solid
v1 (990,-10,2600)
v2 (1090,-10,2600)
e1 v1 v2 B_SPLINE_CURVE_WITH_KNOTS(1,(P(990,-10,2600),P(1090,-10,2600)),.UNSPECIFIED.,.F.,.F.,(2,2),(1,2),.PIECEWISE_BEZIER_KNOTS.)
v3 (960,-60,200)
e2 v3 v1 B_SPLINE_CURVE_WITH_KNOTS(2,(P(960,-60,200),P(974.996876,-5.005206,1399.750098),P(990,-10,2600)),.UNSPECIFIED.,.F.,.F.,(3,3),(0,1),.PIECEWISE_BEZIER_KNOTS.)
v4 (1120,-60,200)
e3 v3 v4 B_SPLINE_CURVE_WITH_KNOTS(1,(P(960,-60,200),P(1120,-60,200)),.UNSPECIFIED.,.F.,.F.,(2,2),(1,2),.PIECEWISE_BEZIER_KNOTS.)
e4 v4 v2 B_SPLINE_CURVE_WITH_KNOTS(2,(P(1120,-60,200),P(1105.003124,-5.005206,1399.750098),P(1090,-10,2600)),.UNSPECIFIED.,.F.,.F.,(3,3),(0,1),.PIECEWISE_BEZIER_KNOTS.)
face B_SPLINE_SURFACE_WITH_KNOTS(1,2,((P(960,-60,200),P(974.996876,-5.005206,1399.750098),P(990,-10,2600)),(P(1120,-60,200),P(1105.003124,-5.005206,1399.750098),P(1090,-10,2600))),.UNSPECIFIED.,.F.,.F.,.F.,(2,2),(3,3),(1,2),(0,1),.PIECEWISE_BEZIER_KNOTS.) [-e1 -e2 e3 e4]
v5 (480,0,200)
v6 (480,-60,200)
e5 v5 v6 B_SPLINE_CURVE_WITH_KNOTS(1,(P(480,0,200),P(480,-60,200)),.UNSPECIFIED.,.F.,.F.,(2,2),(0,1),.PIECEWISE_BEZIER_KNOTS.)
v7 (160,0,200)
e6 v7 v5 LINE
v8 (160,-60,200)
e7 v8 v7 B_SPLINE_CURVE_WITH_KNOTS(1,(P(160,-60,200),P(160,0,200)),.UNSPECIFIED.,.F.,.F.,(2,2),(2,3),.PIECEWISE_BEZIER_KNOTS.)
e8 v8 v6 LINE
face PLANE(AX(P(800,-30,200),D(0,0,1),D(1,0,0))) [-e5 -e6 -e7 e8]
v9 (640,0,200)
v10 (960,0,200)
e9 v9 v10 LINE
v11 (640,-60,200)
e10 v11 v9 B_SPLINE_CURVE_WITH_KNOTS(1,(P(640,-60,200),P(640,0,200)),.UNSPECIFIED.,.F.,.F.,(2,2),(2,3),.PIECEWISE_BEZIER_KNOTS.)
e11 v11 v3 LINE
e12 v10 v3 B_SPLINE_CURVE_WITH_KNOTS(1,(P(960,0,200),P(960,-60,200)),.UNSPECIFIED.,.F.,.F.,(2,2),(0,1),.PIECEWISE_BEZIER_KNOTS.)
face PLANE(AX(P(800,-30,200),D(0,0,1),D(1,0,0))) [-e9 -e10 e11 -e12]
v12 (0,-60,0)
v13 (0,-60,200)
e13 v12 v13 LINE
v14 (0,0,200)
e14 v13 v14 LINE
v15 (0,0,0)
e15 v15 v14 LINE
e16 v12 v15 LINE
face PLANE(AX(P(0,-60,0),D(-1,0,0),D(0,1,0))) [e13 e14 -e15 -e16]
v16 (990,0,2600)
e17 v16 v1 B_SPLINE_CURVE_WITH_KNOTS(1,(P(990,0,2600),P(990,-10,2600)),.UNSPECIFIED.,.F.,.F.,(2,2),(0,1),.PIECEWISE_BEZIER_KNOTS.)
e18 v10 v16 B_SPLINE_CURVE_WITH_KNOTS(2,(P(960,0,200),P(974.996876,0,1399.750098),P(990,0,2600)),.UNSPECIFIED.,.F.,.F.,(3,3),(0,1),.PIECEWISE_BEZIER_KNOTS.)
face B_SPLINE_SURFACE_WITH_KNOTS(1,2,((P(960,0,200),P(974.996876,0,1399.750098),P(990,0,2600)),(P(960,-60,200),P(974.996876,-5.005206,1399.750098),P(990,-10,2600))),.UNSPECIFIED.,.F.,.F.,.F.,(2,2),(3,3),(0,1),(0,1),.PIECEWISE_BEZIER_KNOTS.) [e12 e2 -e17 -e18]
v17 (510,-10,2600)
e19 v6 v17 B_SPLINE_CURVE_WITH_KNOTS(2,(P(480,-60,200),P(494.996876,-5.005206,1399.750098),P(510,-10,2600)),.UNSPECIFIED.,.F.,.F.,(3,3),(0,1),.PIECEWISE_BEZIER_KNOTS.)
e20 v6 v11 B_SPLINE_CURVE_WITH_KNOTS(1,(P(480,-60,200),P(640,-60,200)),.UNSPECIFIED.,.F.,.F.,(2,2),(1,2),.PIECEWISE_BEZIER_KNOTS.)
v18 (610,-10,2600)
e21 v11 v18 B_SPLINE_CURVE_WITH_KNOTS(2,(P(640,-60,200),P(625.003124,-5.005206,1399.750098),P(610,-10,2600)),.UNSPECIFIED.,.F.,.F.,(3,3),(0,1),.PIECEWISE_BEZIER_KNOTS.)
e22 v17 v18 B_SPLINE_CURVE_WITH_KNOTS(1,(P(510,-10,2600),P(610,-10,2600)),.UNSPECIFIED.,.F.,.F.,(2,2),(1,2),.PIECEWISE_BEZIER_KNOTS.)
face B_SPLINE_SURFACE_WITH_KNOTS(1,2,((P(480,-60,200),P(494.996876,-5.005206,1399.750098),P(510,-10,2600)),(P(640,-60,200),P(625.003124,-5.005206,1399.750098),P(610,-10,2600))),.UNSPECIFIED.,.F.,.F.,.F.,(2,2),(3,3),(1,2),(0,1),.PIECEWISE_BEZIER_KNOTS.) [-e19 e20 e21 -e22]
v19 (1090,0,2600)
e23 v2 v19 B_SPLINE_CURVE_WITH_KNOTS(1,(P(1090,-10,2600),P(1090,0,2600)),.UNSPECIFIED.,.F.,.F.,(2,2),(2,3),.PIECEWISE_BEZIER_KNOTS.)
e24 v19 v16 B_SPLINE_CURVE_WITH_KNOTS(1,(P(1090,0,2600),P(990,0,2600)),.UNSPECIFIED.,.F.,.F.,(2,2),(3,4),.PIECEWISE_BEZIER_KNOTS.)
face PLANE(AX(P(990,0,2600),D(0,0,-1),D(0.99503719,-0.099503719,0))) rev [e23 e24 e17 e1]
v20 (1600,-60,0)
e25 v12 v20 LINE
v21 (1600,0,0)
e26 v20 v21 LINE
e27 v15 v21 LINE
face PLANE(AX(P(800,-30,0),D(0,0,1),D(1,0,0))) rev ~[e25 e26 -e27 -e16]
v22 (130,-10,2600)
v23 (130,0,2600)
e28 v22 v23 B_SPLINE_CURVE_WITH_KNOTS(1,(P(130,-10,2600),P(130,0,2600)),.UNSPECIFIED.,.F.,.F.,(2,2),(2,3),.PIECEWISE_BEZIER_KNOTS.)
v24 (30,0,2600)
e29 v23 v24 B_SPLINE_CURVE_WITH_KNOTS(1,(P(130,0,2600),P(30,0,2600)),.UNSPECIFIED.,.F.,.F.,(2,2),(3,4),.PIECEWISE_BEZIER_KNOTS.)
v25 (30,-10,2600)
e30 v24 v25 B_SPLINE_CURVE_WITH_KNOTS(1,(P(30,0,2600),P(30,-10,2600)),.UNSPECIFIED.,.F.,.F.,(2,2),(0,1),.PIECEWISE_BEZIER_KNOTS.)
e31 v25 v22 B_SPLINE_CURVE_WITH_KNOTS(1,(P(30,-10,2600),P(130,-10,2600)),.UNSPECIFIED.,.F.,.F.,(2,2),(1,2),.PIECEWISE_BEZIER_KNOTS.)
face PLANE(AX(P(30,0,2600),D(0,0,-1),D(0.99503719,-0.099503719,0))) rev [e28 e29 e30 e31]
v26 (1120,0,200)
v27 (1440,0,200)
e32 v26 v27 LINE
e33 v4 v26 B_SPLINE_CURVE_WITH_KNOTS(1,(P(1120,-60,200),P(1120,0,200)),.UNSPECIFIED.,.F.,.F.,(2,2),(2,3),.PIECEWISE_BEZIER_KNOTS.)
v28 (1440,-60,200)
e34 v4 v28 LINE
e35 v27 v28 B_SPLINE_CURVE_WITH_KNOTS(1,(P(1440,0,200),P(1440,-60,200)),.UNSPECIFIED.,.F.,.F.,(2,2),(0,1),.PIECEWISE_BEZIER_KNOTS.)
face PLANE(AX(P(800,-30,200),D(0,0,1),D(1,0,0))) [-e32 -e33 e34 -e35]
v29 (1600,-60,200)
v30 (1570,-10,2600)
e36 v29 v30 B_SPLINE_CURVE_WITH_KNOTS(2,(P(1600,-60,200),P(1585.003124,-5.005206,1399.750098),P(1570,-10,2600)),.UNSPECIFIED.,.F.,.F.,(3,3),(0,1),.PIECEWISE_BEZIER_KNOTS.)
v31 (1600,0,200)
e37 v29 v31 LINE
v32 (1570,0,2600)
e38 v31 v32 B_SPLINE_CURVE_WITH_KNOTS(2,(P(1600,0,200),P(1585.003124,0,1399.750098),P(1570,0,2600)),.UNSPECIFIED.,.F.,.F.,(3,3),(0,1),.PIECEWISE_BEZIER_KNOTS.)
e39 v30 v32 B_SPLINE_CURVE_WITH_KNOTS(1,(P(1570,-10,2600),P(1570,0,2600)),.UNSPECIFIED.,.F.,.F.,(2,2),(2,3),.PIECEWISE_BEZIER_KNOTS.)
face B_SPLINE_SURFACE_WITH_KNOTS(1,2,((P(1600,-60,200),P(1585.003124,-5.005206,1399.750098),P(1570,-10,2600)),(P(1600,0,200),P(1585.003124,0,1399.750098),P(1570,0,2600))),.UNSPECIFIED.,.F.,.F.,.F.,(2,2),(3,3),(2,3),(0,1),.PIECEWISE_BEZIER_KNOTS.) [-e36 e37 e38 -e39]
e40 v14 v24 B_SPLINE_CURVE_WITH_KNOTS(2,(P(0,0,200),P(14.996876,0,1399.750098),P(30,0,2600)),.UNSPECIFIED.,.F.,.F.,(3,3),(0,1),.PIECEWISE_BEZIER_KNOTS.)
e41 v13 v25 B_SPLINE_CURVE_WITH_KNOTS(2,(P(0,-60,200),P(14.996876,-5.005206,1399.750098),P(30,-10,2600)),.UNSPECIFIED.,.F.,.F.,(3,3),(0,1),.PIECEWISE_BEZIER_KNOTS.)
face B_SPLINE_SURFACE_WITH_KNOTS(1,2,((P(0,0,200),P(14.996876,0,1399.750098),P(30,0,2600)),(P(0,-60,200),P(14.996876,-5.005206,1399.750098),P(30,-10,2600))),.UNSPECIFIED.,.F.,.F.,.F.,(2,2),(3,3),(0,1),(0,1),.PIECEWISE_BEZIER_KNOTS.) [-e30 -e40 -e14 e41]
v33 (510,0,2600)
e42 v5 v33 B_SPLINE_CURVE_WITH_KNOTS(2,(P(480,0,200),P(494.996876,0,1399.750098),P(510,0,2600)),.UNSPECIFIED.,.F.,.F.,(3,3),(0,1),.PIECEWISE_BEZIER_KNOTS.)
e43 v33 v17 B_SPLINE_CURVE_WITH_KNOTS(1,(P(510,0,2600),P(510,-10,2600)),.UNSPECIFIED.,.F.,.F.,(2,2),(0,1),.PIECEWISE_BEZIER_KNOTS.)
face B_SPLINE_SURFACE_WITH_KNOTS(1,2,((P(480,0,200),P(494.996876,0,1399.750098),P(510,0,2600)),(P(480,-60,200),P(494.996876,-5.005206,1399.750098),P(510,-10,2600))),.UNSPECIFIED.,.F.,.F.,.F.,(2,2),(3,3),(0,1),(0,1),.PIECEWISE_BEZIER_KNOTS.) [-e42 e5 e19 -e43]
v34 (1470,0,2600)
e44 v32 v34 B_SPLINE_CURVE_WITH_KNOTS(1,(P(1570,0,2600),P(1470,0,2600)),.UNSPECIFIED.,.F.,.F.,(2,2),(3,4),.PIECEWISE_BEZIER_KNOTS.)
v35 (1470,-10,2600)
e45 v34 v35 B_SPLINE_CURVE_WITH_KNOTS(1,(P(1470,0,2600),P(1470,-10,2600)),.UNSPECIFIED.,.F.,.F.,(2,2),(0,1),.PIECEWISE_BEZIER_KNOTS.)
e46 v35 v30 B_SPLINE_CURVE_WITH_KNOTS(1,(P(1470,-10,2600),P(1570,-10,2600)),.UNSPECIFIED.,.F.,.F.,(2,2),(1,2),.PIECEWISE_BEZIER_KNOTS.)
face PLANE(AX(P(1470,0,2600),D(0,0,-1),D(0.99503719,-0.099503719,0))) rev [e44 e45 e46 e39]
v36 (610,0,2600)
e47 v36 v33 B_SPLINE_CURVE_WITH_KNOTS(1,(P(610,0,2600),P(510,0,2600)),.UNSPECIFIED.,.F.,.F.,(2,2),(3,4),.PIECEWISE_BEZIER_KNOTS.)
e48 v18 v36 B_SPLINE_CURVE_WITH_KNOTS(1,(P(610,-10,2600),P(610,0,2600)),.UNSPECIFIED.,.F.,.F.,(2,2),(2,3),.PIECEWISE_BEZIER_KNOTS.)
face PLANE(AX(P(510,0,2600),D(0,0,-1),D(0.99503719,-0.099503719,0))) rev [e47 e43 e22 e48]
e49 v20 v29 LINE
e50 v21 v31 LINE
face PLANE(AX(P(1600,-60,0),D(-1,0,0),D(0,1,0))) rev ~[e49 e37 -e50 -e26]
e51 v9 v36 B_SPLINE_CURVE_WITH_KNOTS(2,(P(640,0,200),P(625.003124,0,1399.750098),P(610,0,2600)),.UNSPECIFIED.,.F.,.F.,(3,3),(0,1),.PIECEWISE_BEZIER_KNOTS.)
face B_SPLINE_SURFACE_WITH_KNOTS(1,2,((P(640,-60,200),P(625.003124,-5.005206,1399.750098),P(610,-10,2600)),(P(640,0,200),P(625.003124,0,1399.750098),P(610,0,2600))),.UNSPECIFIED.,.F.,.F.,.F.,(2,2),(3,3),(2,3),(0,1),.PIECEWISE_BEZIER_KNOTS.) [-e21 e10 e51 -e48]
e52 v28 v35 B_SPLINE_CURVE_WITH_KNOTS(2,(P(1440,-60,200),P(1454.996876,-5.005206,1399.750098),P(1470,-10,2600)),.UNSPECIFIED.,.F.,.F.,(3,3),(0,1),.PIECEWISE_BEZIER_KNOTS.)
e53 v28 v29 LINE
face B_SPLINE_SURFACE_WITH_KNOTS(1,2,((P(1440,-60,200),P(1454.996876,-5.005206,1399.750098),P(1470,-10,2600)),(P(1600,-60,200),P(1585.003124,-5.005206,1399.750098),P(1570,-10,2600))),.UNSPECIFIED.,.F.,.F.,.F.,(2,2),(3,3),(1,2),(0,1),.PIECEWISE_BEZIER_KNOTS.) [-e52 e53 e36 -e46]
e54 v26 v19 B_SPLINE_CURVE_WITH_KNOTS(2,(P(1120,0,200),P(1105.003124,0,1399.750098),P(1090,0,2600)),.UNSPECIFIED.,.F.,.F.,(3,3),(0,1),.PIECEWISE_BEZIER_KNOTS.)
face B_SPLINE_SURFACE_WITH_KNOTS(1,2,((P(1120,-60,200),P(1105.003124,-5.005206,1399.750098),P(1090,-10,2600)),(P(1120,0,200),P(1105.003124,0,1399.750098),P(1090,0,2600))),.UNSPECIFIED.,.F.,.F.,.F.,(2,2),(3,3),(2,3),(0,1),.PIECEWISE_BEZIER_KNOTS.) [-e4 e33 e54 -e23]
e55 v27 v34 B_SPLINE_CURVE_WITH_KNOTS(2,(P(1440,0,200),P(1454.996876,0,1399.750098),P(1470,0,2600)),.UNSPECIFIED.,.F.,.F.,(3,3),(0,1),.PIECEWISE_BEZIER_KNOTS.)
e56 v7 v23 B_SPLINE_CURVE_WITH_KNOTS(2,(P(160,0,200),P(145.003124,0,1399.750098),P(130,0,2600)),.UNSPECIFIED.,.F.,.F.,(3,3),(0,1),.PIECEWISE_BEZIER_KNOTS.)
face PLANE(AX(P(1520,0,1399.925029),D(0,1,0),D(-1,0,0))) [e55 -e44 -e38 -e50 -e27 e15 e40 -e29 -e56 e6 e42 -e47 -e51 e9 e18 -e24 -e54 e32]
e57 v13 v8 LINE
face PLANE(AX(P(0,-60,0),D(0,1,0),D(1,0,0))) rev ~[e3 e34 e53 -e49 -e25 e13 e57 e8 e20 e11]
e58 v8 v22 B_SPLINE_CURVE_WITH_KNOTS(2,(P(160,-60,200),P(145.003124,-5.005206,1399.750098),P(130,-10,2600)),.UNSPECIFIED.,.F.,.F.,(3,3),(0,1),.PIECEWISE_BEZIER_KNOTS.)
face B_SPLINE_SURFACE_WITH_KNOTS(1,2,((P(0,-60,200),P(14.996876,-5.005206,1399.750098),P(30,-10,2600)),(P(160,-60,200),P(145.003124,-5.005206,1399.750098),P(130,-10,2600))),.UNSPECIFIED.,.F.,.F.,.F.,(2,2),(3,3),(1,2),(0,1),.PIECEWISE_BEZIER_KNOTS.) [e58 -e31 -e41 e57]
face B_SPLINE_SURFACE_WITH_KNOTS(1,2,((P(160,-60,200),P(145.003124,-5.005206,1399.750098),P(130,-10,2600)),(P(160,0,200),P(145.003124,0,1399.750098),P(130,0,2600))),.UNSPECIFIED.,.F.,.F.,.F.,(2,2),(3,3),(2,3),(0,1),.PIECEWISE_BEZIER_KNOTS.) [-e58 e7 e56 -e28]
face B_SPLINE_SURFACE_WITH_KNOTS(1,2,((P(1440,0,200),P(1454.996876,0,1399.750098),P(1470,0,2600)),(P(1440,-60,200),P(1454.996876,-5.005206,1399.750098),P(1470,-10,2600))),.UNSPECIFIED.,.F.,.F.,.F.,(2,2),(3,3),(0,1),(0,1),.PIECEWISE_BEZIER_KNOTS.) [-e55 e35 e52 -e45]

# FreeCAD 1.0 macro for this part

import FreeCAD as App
import Part
import Sketcher
from FreeCAD import Vector


def add_polygon(sketch, points):
    """Adds a closed chain of lines whose ends are joined by coincident constraints."""
    first, n = sketch.GeometryCount, len(points)
    for a, b in zip(points, points[1:] + points[:1]):
        sketch.addGeometry(Part.LineSegment(App.Vector(*a, 0), App.Vector(*b, 0)), False)
    for i in range(n):
        sketch.addConstraint(Sketcher.Constraint("Coincident", first + i, 2, first + (i + 1) % n, 1))

doc = App.newDocument("Part")
params = doc.addObject("Spreadsheet::Sheet", "Params")
for row, (alias, value) in enumerate([
    ("sketch1_width", "1600 mm"),
    ("sketch1_height", "60 mm"),
    ("pad1_length", "200 mm"),
    ("sketch2_width", "160 mm"),
    ("sketch2_height", "60 mm"),
    ("sketch3_width", "130 mm"),
    ("sketch3_height", "20 mm"),
    ("sketch4_width", "100 mm"),
    ("sketch4_height", "10 mm"),
    ("linearpattern_pitch", "480 mm"),
], start=1):
    params.set(f"A{row}", alias)
    params.set(f"B{row}", "=" + value)
    params.setAlias(f"B{row}", alias)

body = doc.addObject("PartDesign::Body", "Body")

sketch1 = body.newObject("Sketcher::SketchObject", "Sketch")
sketch1.AttachmentSupport = (doc.getObject("XY_Plane"), [""])
sketch1.MapMode = "FlatFace"
add_polygon(sketch1, [(0, 0), (0, -60), (1600, -60), (1600, 0)])
sketch1.addConstraint([
    Sketcher.Constraint("Vertical", 0),
    Sketcher.Constraint("Horizontal", 1),
    Sketcher.Constraint("Vertical", 2),
    Sketcher.Constraint("Horizontal", 3),
    Sketcher.Constraint("Coincident", 3, 2, -1, 1),
    Sketcher.Constraint("DistanceX", 1, 1, 1, 2, 1600.0),
    Sketcher.Constraint("DistanceY", 0, 2, 0, 1, 60.0),
])
sketch1.setExpression("Constraints[9]", "Params.sketch1_width")
sketch1.setExpression("Constraints[10]", "Params.sketch1_height")
pad1 = body.newObject("PartDesign::Pad", "Pad")
pad1.Profile = sketch1
pad1.setExpression("Length", "Params.pad1_length")

sketch2 = body.newObject("Sketcher::SketchObject", "Sketch001")
sketch2.AttachmentSupport = (doc.getObject("XY_Plane"), [""])
sketch2.MapMode = "FlatFace"
sketch2.AttachmentOffset = App.Placement(Vector(0, 0, 200), App.Rotation())
add_polygon(sketch2, [(0, 0), (0, -60), (160, -60), (160, 0)])
sketch2.addConstraint([
    Sketcher.Constraint("Vertical", 0),
    Sketcher.Constraint("Horizontal", 1),
    Sketcher.Constraint("Vertical", 2),
    Sketcher.Constraint("Horizontal", 3),
    Sketcher.Constraint("Coincident", 3, 2, -1, 1),
    Sketcher.Constraint("DistanceX", 1, 1, 1, 2, 160.0),
    Sketcher.Constraint("DistanceY", 0, 2, 0, 1, 60.0),
])
sketch2.setExpression("Constraints[9]", "Params.sketch2_width")
sketch2.setExpression("Constraints[10]", "Params.sketch2_height")

sketch3 = body.newObject("Sketcher::SketchObject", "Sketch002")
sketch3.AttachmentSupport = (doc.getObject("XY_Plane"), [""])
sketch3.MapMode = "FlatFace"
sketch3.AttachmentOffset = App.Placement(Vector(0, 0, 1400), App.Rotation())
add_polygon(sketch3, [(15, 0), (15, -20), (145, -20), (145, 0)])
sketch3.addConstraint([
    Sketcher.Constraint("Vertical", 0),
    Sketcher.Constraint("Horizontal", 1),
    Sketcher.Constraint("Vertical", 2),
    Sketcher.Constraint("Horizontal", 3),
    Sketcher.Constraint("PointOnObject", 2, 2, -1),
    Sketcher.Constraint("DistanceX", 1, 1, 1, 2, 130.0),
    Sketcher.Constraint("DistanceY", 0, 2, 0, 1, 20.0),
    Sketcher.Constraint("DistanceX", -1, 1, 0, 2, 15.0),
])
sketch3.setExpression("Constraints[9]", "Params.sketch3_width")
sketch3.setExpression("Constraints[10]", "Params.sketch3_height")

sketch4 = body.newObject("Sketcher::SketchObject", "Sketch003")
sketch4.AttachmentSupport = (doc.getObject("XY_Plane"), [""])
sketch4.MapMode = "FlatFace"
sketch4.AttachmentOffset = App.Placement(Vector(0, 0, 2600), App.Rotation())
add_polygon(sketch4, [(30, 0), (30, -10), (130, -10), (130, 0)])
sketch4.addConstraint([
    Sketcher.Constraint("Vertical", 0),
    Sketcher.Constraint("Horizontal", 1),
    Sketcher.Constraint("Vertical", 2),
    Sketcher.Constraint("Horizontal", 3),
    Sketcher.Constraint("PointOnObject", 2, 2, -1),
    Sketcher.Constraint("DistanceX", 1, 1, 1, 2, 100.0),
    Sketcher.Constraint("DistanceY", 0, 2, 0, 1, 10.0),
    Sketcher.Constraint("DistanceX", -1, 1, 0, 2, 30.0),
])
sketch4.setExpression("Constraints[9]", "Params.sketch4_width")
sketch4.setExpression("Constraints[10]", "Params.sketch4_height")

additiveloft = body.newObject("PartDesign::AdditiveLoft", "AdditiveLoft")
additiveloft.Profile = sketch2
additiveloft.Sections = [sketch3, sketch4]
doc.recompute()

linearpattern = body.newObject("PartDesign::LinearPattern", "LinearPattern")
linearpattern.Originals = [additiveloft]
linearpattern.Direction = (doc.getObject("X_Axis"), [""])
linearpattern.Mode = "offset"
linearpattern.setExpression("Offset", "Params.linearpattern_pitch")
linearpattern.Occurrences = 4
body.Tip = linearpattern

doc.recompute()
